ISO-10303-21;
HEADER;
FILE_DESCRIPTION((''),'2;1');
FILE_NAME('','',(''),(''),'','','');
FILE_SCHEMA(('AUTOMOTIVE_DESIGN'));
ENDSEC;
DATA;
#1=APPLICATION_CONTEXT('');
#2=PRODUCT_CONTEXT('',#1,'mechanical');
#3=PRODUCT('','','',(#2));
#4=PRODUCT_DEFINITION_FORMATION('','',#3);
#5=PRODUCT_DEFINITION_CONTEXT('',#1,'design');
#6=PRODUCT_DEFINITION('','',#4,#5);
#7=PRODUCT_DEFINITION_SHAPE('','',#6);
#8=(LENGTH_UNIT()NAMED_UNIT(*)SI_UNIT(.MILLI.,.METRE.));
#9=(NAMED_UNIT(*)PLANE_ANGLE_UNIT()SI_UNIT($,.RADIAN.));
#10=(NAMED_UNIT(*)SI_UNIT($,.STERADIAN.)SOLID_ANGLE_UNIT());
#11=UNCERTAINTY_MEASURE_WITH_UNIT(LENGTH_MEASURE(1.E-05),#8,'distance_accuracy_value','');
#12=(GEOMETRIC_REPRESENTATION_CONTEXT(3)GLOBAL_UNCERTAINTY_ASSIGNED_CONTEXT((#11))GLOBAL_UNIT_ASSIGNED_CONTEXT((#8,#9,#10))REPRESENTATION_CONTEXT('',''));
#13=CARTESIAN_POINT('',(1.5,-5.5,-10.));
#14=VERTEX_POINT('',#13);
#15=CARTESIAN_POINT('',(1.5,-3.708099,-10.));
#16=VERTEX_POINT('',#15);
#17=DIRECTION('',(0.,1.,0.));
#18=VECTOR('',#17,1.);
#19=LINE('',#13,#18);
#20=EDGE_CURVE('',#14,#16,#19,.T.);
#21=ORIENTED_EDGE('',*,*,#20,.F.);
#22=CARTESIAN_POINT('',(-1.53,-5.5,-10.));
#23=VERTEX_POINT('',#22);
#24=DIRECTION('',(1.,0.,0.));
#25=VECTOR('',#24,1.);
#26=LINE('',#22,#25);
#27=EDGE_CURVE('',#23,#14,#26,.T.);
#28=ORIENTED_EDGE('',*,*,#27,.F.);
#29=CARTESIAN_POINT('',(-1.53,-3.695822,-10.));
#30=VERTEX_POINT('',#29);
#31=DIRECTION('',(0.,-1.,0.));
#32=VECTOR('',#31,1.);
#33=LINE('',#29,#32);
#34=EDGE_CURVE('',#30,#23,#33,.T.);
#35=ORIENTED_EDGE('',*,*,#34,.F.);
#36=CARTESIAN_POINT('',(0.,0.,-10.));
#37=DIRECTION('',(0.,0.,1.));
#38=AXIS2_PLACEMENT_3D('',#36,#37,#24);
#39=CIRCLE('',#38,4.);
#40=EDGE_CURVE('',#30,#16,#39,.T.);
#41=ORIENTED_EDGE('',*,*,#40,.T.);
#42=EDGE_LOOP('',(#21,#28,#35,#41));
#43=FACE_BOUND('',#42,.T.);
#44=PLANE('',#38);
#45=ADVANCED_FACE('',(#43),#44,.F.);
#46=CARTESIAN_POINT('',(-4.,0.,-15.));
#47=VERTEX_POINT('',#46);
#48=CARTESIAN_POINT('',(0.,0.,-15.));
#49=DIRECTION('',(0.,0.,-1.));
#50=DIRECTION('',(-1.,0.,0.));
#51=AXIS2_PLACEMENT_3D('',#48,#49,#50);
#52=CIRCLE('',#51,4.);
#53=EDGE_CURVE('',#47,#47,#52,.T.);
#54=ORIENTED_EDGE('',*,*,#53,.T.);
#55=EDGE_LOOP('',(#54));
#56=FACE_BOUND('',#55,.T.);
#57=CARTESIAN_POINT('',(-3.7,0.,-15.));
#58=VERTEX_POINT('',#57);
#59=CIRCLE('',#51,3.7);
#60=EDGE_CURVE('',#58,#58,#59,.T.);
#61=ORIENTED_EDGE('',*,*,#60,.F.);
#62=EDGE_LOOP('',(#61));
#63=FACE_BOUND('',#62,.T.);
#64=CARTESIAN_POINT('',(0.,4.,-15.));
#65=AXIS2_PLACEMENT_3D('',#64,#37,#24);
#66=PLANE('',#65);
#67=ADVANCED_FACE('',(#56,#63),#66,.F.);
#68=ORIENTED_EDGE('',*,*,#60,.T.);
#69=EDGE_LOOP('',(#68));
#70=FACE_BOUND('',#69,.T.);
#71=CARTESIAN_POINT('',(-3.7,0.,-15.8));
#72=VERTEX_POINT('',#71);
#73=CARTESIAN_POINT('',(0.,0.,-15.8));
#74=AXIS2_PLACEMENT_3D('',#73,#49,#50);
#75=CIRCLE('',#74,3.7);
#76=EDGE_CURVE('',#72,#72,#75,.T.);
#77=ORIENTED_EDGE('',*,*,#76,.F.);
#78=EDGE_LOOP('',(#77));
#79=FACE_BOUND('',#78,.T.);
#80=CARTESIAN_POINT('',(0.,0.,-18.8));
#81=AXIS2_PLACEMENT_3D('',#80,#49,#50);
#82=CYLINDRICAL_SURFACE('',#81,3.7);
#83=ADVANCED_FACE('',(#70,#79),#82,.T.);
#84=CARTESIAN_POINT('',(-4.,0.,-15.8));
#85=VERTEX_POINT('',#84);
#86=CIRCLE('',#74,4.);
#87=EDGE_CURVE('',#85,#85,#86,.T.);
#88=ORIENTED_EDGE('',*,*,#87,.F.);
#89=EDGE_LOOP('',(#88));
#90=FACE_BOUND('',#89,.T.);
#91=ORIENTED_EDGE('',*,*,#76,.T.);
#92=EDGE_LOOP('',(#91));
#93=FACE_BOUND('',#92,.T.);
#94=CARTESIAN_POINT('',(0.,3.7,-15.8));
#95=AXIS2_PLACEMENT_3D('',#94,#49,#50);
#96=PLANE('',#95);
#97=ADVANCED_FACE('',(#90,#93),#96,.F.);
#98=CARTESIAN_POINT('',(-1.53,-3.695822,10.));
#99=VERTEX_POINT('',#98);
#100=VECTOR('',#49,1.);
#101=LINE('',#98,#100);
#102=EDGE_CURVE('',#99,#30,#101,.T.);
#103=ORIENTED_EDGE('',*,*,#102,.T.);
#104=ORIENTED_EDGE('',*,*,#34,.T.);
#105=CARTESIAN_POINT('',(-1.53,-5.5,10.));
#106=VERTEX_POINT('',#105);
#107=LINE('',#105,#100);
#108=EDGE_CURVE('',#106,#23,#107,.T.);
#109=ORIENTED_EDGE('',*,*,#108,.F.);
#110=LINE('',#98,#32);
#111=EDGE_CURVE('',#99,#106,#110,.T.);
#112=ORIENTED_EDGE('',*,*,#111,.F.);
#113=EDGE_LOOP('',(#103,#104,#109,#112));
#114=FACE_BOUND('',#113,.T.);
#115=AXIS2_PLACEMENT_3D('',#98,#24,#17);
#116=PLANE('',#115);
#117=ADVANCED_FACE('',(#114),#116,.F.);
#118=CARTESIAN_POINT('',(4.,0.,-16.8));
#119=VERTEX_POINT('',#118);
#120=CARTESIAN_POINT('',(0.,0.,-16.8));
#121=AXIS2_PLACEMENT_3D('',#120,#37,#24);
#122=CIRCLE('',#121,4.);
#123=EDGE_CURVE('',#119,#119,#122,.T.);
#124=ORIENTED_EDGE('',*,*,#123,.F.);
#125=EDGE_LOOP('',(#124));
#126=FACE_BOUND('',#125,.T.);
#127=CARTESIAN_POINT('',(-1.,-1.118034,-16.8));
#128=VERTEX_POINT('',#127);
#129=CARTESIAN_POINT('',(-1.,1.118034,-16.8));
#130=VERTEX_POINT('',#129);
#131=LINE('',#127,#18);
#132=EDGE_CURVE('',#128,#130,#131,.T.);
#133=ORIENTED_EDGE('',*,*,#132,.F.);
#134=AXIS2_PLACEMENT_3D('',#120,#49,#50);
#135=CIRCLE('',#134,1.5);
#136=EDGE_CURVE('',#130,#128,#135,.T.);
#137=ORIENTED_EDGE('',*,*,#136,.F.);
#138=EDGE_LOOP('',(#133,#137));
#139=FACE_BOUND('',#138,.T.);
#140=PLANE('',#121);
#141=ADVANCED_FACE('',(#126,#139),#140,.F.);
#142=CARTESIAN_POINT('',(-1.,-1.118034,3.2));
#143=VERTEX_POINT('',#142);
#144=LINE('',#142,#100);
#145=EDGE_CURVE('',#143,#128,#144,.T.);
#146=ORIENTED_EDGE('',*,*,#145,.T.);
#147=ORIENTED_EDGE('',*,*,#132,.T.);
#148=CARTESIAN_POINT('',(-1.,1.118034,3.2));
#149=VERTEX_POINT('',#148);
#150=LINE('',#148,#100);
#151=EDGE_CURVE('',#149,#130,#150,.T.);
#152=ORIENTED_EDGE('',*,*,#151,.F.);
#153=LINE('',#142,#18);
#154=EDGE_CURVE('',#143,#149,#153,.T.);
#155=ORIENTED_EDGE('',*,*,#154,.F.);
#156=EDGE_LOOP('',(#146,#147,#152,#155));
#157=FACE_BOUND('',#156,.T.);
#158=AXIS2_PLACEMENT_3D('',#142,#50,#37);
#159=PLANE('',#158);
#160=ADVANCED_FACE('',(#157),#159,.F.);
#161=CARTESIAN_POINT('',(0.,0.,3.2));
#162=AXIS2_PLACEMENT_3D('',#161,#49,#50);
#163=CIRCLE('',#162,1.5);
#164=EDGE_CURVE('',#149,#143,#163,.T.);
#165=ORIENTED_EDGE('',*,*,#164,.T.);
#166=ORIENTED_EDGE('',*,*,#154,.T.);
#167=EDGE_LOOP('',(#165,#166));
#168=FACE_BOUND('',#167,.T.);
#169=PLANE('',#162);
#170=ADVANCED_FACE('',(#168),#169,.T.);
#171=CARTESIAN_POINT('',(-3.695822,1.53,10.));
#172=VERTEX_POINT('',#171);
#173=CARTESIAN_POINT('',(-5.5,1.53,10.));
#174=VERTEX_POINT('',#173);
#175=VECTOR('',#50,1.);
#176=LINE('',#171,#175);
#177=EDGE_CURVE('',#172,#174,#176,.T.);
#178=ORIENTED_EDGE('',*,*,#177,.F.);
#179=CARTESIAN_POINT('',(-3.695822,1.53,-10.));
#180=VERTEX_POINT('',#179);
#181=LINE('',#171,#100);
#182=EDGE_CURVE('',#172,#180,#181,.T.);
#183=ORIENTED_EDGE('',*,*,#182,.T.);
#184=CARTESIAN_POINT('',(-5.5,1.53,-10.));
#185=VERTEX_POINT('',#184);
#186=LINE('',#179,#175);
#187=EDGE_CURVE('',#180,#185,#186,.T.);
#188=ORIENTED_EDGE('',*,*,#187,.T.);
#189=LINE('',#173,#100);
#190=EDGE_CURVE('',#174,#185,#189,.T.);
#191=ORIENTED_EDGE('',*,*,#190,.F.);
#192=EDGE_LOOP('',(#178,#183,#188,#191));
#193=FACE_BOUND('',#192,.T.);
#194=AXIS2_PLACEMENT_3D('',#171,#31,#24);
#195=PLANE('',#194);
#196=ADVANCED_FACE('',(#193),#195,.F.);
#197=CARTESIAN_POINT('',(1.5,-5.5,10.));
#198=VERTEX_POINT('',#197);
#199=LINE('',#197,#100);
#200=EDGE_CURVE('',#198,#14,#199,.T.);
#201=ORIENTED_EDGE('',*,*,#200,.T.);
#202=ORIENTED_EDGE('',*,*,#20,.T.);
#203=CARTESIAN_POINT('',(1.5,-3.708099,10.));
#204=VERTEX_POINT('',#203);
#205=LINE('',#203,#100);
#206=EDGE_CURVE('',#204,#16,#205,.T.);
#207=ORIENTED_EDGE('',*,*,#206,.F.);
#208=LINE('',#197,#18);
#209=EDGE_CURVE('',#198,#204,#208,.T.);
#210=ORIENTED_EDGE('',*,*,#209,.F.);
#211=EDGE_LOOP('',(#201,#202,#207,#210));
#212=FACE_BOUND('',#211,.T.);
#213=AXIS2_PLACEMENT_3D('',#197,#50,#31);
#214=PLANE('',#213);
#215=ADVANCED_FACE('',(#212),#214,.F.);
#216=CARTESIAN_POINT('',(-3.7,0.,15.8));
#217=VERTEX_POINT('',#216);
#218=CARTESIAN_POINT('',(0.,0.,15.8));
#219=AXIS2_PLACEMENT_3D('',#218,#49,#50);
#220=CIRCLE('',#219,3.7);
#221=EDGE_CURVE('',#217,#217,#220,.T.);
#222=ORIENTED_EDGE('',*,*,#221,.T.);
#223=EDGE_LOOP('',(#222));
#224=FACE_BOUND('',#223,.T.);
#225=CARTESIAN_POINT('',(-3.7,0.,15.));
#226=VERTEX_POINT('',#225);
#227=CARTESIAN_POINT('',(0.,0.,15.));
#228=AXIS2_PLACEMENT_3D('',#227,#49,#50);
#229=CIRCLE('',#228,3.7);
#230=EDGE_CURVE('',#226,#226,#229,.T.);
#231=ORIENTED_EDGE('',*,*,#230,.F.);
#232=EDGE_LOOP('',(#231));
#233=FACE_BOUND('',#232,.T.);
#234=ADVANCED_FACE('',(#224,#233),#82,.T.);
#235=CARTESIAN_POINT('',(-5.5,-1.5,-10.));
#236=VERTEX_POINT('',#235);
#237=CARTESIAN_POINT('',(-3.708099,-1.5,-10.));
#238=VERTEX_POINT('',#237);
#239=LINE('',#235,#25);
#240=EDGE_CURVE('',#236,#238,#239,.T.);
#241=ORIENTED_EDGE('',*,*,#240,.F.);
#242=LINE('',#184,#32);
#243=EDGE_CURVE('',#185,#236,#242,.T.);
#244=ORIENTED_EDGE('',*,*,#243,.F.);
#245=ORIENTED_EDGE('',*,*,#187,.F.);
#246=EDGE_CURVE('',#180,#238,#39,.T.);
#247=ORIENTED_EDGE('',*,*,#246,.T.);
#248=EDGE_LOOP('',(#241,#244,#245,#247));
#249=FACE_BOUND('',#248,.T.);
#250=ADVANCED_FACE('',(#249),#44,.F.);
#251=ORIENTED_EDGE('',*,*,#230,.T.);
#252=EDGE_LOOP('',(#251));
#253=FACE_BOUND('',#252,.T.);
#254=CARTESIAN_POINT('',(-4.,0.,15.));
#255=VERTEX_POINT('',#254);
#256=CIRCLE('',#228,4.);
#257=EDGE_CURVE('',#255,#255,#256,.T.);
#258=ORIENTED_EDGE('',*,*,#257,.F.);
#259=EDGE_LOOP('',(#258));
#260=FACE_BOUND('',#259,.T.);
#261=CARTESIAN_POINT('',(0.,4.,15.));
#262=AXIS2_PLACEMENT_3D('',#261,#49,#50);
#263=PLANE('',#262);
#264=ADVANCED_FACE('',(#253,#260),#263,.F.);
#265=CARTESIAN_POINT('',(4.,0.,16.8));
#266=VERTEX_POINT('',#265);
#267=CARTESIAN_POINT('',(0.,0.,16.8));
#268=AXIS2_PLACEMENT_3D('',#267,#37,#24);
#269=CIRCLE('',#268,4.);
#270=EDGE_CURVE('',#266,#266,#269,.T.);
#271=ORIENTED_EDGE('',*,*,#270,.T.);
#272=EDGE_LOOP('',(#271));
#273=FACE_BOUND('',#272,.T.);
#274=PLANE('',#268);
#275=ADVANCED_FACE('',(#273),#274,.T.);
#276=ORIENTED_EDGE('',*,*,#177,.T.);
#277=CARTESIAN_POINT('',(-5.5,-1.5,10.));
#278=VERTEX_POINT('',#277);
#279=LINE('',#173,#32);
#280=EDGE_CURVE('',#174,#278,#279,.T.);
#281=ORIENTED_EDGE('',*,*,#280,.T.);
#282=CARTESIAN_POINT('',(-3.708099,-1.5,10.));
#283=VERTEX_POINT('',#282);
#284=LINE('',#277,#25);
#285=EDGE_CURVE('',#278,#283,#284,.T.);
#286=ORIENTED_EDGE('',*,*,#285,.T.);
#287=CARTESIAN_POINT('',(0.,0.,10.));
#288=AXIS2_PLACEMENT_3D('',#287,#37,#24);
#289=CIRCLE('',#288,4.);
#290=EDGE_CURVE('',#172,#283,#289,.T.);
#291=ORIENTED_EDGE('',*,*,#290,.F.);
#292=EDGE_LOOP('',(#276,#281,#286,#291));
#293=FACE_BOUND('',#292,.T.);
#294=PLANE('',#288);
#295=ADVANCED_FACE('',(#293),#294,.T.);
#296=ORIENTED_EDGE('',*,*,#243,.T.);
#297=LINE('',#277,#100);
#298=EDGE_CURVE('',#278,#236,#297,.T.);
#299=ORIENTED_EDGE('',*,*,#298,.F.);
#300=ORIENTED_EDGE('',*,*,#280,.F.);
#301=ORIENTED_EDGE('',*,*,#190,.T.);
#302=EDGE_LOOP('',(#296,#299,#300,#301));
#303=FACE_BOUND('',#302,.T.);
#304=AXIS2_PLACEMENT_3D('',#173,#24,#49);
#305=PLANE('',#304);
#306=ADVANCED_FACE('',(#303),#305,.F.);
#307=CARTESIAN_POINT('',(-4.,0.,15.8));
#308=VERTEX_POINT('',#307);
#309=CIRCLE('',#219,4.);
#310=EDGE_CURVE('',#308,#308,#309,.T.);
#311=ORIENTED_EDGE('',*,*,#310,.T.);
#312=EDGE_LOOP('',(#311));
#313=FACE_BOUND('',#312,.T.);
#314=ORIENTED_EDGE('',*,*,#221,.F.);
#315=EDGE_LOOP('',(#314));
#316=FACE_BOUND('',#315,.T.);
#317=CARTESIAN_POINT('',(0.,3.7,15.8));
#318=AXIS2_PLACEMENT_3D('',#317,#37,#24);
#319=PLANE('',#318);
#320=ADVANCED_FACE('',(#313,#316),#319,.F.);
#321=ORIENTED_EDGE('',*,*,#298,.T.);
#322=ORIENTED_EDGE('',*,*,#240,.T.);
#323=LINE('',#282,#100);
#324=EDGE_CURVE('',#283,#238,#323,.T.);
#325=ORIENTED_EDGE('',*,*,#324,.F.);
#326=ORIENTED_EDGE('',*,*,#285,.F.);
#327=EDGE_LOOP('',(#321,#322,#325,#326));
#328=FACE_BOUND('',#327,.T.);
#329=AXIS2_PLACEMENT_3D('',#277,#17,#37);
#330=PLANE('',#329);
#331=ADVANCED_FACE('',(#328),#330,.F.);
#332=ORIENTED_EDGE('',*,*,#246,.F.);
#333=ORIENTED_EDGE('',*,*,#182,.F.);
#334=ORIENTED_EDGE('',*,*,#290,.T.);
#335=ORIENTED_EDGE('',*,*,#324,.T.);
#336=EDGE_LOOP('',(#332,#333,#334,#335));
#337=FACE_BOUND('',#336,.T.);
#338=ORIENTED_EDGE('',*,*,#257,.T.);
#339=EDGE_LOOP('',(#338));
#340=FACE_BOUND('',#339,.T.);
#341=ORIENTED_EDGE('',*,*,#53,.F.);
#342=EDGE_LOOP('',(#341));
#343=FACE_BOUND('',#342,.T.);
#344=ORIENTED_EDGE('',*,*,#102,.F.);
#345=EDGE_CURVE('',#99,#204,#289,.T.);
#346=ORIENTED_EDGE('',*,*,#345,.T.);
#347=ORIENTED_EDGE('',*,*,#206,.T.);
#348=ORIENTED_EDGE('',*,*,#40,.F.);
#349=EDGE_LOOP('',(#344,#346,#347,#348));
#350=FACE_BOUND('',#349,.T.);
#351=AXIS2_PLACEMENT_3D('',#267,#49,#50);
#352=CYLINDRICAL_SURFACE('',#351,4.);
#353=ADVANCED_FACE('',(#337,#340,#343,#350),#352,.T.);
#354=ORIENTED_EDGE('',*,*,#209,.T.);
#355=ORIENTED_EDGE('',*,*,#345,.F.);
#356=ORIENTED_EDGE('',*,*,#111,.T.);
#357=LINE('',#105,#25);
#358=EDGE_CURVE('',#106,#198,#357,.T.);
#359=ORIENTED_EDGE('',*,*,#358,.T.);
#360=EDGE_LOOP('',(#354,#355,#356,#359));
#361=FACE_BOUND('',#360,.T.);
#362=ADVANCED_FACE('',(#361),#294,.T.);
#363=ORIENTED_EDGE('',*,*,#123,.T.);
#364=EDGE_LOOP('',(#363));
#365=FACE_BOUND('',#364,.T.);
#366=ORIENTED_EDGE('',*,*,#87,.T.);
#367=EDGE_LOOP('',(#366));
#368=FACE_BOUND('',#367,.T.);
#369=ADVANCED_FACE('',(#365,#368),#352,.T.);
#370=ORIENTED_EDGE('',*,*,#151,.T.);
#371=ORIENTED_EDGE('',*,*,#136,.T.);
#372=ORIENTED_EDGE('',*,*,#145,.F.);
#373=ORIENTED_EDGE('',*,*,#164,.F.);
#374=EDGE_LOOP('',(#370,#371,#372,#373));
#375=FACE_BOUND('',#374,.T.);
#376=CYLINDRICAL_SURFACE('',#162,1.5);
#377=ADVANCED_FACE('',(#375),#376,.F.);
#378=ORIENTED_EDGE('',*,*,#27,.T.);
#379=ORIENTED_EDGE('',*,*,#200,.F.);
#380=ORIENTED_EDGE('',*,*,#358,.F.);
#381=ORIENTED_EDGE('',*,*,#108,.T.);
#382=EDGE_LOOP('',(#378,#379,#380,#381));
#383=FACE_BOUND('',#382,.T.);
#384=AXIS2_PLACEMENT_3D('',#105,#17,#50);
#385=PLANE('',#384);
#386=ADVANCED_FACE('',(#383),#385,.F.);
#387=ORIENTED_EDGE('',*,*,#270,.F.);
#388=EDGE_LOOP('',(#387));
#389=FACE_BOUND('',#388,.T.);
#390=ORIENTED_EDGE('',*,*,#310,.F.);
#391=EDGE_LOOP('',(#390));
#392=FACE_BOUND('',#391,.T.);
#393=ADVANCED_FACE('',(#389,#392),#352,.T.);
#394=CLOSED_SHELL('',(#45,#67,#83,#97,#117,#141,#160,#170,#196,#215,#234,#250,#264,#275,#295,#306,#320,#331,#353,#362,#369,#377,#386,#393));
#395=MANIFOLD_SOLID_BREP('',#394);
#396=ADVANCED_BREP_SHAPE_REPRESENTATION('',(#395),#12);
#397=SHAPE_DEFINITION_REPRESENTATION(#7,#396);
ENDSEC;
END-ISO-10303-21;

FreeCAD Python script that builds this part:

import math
import FreeCAD as App
import Part
import Sketcher

V = App.Vector
Q = App.Units.Quantity


def add_polygon(sketch, points):
    """Adds a closed chain of lines whose ends are joined by coincident constraints."""
    first, n = sketch.GeometryCount, len(points)
    for a, b in zip(points, points[1:] + points[:1]):
        sketch.addGeometry(Part.LineSegment(App.Vector(*a, 0), App.Vector(*b, 0)), False)
    for i in range(n):
        sketch.addConstraint(Sketcher.Constraint("Coincident", first + i, 2, first + (i + 1) % n, 1))

doc = App.newDocument("Part")
body = doc.addObject("PartDesign::Body", "Body")

# Sketch on XY plane
sketch1 = body.newObject("Sketcher::SketchObject", "Sketch")
sketch1.AttachmentSupport = (doc.getObject("XY_Plane"), [""])
sketch1.MapMode = "FlatFace"
sketch1.addGeometry(Part.Circle(V(0, 0, 0), V(0, 0, 1), 4), False)
sketch1.addConstraint([
    Sketcher.Constraint("Coincident", 0, 3, -1, 1),
    Sketcher.Constraint("Diameter", 0, Q("8 mm")),
])
pad1 = body.newObject("PartDesign::Pad", "Pad")
pad1.Profile = sketch1
pad1.Length = 33.6
pad1.Midplane = True

# Sketch on YZ plane
sketch2 = body.newObject("Sketcher::SketchObject", "Sketch001")
sketch2.AttachmentSupport = (doc.getObject("YZ_Plane"), [""])
sketch2.MapMode = "FlatFace"
add_polygon(sketch2, [(4, 15.8), (3.7, 15.8), (3.7, 15), (4, 15)])  # lines 0-3
add_polygon(sketch2, [(4, -15), (3.7, -15), (3.7, -15.8), (4, -15.8)])  # lines 4-7
sketch2.addConstraint([
    Sketcher.Constraint("Horizontal", 0),
    Sketcher.Constraint("Vertical", 1),
    Sketcher.Constraint("Horizontal", 2),
    Sketcher.Constraint("Vertical", 3),
    Sketcher.Constraint("Horizontal", 4),
    Sketcher.Constraint("Vertical", 5),
    Sketcher.Constraint("Horizontal", 6),
    Sketcher.Constraint("Vertical", 7),
    Sketcher.Constraint("Symmetric", 1, 2, 4, 2, -1),
    Sketcher.Constraint("Symmetric", 3, 2, 6, 2, -1),
    Sketcher.Constraint("DistanceX", 0, 2, 0, 1, Q("0.3 mm")),
    Sketcher.Constraint("DistanceY", 1, 2, 1, 1, Q("0.8 mm")),
    Sketcher.Constraint("DistanceY", -1, 1, 1, 2, Q("15 mm")),
    Sketcher.Constraint("DistanceX", -1, 1, 2, 2, Q("4 mm")),
])
groove = body.newObject("PartDesign::Groove", "Groove")
groove.Profile = sketch2
groove.ReferenceAxis = (sketch2, ["V_Axis"])
groove.Angle = 360

# Sketch on XY plane
sketch3 = body.newObject("Sketcher::SketchObject", "Sketch002")
sketch3.AttachmentSupport = (doc.getObject("XY_Plane"), [""])
sketch3.MapMode = "FlatFace"
sketch3.addGeometry([
    Part.LineSegment(V(-5.5, -1.5, 0), V(-3.7, -1.5, 0)),  # 0
    Part.ArcOfCircle(Part.Circle(V(0, 0, 0), V(0, 0, 1), 4), math.radians(-158), math.radians(-112)),  # 1
    Part.LineSegment(V(-1.5, -3.7, 0), V(-1.5, -5.5, 0)),  # 2
    Part.LineSegment(V(-1.5, -5.5, 0), V(1.5, -5.5, 0)),  # 3
    Part.LineSegment(V(1.5, -5.5, 0), V(1.5, -3.7, 0)),  # 4
    Part.ArcOfCircle(Part.Circle(V(0, 0, 0), V(0, 0, 1), 4), math.radians(-68), math.radians(158)),  # 5
    Part.LineSegment(V(-3.7, 1.5, 0), V(-5.5, 1.5, 0)),  # 6
    Part.LineSegment(V(-5.5, 1.5, 0), V(-5.5, -1.5, 0)),  # 7
], False)
sketch3.addConstraint([
    Sketcher.Constraint("Coincident", 0, 2, 1, 1),
    Sketcher.Constraint("Coincident", 1, 2, 2, 1),
    Sketcher.Constraint("Coincident", 2, 2, 3, 1),
    Sketcher.Constraint("Coincident", 3, 2, 4, 1),
    Sketcher.Constraint("Coincident", 4, 2, 5, 1),
    Sketcher.Constraint("Coincident", 5, 2, 6, 1),
    Sketcher.Constraint("Coincident", 6, 2, 7, 1),
    Sketcher.Constraint("Coincident", 7, 2, 0, 1),
    Sketcher.Constraint("Horizontal", 0),
    Sketcher.Constraint("Vertical", 2),
    Sketcher.Constraint("Horizontal", 3),
    Sketcher.Constraint("Vertical", 4),
    Sketcher.Constraint("Horizontal", 6),
    Sketcher.Constraint("Vertical", 7),
    Sketcher.Constraint("Coincident", 1, 3, -1, 1),
    Sketcher.Constraint("Coincident", 5, 3, -1, 1),
    Sketcher.Constraint("Equal", 6, 2),
    Sketcher.Constraint("Equal", 0, 4),
    Sketcher.Constraint("Equal", 3, 7),
    Sketcher.Constraint("Radius", 5, Q("4 mm")),
    Sketcher.Constraint("DistanceY", 2, 2, 0, 2, Q("4 mm")),
    Sketcher.Constraint("DistanceX", 3, 1, 3, 2, Q("3.03 mm")),
    Sketcher.Constraint("DistanceY", 0, 2, -1, 1, Q("1.5 mm")),
    Sketcher.Constraint("DistanceX", -1, 1, 3, 2, Q("1.5 mm")),
])
pad2 = body.newObject("PartDesign::Pad", "Pad001")
pad2.Profile = sketch3
pad2.Length = 20
pad2.Midplane = True

# Sketch on XY plane
sketch4 = body.newObject("Sketcher::SketchObject", "Sketch003")
sketch4.AttachmentSupport = (doc.getObject("XY_Plane"), [""])
sketch4.MapMode = "FlatFace"
sketch4.AttachmentOffset = App.Placement(V(0, 0, -16.8), App.Rotation())
sketch4.addGeometry([
    Part.LineSegment(V(-1, -1.1, 0), V(-1, 1.1, 0)),
    Part.ArcOfCircle(Part.Circle(V(0, 0, 0), V(0, 0, 1), 1.5), math.radians(-132), math.radians(132)),
], False)
sketch4.addConstraint([
    Sketcher.Constraint("Coincident", 0, 1, 1, 1),
    Sketcher.Constraint("Coincident", 1, 2, 0, 2),
    Sketcher.Constraint("Vertical", 0),
    Sketcher.Constraint("Coincident", 1, 3, -1, 1),
    Sketcher.Constraint("Radius", 1, Q("1.5 mm")),
    Sketcher.Constraint("DistanceX", 0, 1, -1, 1, Q("1 mm")),
])
pocket1 = body.newObject("PartDesign::Pocket", "Pocket")
pocket1.Profile = sketch4
pocket1.Length = 20
pocket1.Reversed = True

doc.recompute()
